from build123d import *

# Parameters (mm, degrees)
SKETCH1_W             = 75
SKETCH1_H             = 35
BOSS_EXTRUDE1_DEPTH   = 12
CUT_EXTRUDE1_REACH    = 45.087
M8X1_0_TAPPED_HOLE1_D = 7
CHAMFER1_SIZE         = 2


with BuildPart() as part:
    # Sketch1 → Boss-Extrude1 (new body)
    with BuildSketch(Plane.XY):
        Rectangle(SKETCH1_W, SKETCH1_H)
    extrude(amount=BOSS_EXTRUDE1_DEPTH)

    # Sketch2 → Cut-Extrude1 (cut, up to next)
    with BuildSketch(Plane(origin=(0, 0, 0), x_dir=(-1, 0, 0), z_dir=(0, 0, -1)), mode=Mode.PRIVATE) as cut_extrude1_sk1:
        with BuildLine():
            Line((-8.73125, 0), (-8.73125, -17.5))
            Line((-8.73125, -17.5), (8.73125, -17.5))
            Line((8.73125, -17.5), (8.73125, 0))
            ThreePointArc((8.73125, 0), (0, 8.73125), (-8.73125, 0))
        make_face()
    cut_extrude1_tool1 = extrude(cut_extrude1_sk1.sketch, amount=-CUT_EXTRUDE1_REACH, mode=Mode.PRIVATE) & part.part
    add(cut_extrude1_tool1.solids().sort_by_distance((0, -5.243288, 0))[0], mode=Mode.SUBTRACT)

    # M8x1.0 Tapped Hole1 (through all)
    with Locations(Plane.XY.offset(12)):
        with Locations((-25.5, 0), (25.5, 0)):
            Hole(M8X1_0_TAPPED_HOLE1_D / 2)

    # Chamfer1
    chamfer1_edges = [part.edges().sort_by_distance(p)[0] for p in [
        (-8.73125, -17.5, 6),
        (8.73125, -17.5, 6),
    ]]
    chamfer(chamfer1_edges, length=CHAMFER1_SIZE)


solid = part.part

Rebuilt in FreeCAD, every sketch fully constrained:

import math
import FreeCAD as App
import Part
import Sketcher
from FreeCAD import Vector
Q = App.Units.Quantity


def edges_at(feature, points):
    """Names of the edges that pass closest to the given points."""
    edges = feature.Shape.Edges
    near = lambda p: min(range(len(edges)), key=lambda i: edges[i].distToShape(Part.Vertex(*p))[0])
    return sorted({f"Edge{near(p) + 1}" for p in points})


def add_polygon(sketch, points):
    """Adds a closed chain of lines whose ends are joined by coincident constraints."""
    first, n = sketch.GeometryCount, len(points)
    for a, b in zip(points, points[1:] + points[:1]):
        sketch.addGeometry(Part.LineSegment(App.Vector(*a, 0), App.Vector(*b, 0)), False)
    for i in range(n):
        sketch.addConstraint(Sketcher.Constraint("Coincident", first + i, 2, first + (i + 1) % n, 1))

doc = App.newDocument("Part")
body = doc.addObject("PartDesign::Body", "Body")

sketch1 = body.newObject("Sketcher::SketchObject", "Sketch")
sketch1.AttachmentSupport = (doc.getObject("XY_Plane"), [""])
sketch1.MapMode = "FlatFace"
add_polygon(sketch1, [(-38, 18), (-38, -18), (38, -18), (38, 18)])
sketch1.addConstraint(Sketcher.Constraint("Vertical", 0))
sketch1.addConstraint(Sketcher.Constraint("Horizontal", 1))
sketch1.addConstraint(Sketcher.Constraint("Vertical", 2))
sketch1.addConstraint(Sketcher.Constraint("Horizontal", 3))
sketch1.addConstraint(Sketcher.Constraint("Symmetric", 0, 2, 2, 2, -1, 1))
sketch1.addConstraint(Sketcher.Constraint("DistanceX", 1, 1, 1, 2, Q("75 mm")))
sketch1.addConstraint(Sketcher.Constraint("DistanceY", 0, 2, 0, 1, Q("35 mm")))
pad1 = body.newObject("PartDesign::Pad", "Pad")
pad1.Profile = sketch1
pad1.Length = 12

sketch2 = body.newObject("Sketcher::SketchObject", "Sketch001")
sketch2.AttachmentSupport = (doc.getObject("XY_Plane"), [""])
sketch2.MapMode = "FlatFace"
sketch2.addGeometry(Part.LineSegment(Vector(9, 0, 0), Vector(9, -18, 0)), False)
sketch2.addGeometry(Part.LineSegment(Vector(9, -18, 0), Vector(-9, -18, 0)), False)
sketch2.addGeometry(Part.LineSegment(Vector(-9, -18, 0), Vector(-9, 0, 0)), False)
sketch2.addGeometry(Part.ArcOfCircle(Part.Circle(Vector(0, 0, 0), Vector(0, 0, 1), 9), math.radians(0), math.radians(180)), False)
sketch2.addConstraint(Sketcher.Constraint("Coincident", 0, 2, 1, 1))
sketch2.addConstraint(Sketcher.Constraint("Coincident", 1, 2, 2, 1))
sketch2.addConstraint(Sketcher.Constraint("Tangent", 2, 2, 3, 2))
sketch2.addConstraint(Sketcher.Constraint("Tangent", 3, 1, 0, 1))
sketch2.addConstraint(Sketcher.Constraint("Vertical", 0))
sketch2.addConstraint(Sketcher.Constraint("Horizontal", 1))
sketch2.addConstraint(Sketcher.Constraint("Vertical", 2))
sketch2.addConstraint(Sketcher.Constraint("Coincident", 3, 3, -1, 1))
sketch2.addConstraint(Sketcher.Constraint("DistanceY", 0, 2, 0, 1, Q("17.5 mm")))
sketch2.addConstraint(Sketcher.Constraint("Radius", 3, Q("8.73125 mm")))
pocket1 = body.newObject("PartDesign::Pocket", "Pocket")
pocket1.Profile = sketch2
pocket1.Type = "UpToFirst"
pocket1.Reversed = True

sketch3 = body.newObject("Sketcher::SketchObject", "Sketch002")
sketch3.AttachmentSupport = (doc.getObject("XY_Plane"), [""])
sketch3.MapMode = "FlatFace"
sketch3.AttachmentOffset = App.Placement(Vector(0, 0, 12), App.Rotation())
sketch3.addGeometry(Part.Circle(Vector(-25.5, 0, 0), Vector(0, 0, 1), 3.5), False)
sketch3.addGeometry(Part.Circle(Vector(25.5, 0, 0), Vector(0, 0, 1), 3.5), False)
sketch3.addConstraint(Sketcher.Constraint("Equal", 0, 1))
sketch3.addConstraint(Sketcher.Constraint("Symmetric", 0, 3, 1, 3, -1, 1))
sketch3.addConstraint(Sketcher.Constraint("PointOnObject", 0, 3, -1))
sketch3.addConstraint(Sketcher.Constraint("Diameter", 0, Q("7 mm")))
sketch3.addConstraint(Sketcher.Constraint("DistanceX", 0, 3, 1, 3, Q("51 mm")))
doc.recompute()
hole = body.newObject("PartDesign::Hole", "Hole")
hole.Profile = sketch3
hole.ThreadType = "None"
hole.Diameter = 7
hole.DepthType = "ThroughAll"
doc.recompute()

chamfer = body.newObject("PartDesign::Chamfer", "Chamfer")
chamfer.Base = (hole, edges_at(hole, [(-8.731, -17.5, 6), (8.731, -17.5, 6)]))
chamfer.Size = 2

doc.recompute()
